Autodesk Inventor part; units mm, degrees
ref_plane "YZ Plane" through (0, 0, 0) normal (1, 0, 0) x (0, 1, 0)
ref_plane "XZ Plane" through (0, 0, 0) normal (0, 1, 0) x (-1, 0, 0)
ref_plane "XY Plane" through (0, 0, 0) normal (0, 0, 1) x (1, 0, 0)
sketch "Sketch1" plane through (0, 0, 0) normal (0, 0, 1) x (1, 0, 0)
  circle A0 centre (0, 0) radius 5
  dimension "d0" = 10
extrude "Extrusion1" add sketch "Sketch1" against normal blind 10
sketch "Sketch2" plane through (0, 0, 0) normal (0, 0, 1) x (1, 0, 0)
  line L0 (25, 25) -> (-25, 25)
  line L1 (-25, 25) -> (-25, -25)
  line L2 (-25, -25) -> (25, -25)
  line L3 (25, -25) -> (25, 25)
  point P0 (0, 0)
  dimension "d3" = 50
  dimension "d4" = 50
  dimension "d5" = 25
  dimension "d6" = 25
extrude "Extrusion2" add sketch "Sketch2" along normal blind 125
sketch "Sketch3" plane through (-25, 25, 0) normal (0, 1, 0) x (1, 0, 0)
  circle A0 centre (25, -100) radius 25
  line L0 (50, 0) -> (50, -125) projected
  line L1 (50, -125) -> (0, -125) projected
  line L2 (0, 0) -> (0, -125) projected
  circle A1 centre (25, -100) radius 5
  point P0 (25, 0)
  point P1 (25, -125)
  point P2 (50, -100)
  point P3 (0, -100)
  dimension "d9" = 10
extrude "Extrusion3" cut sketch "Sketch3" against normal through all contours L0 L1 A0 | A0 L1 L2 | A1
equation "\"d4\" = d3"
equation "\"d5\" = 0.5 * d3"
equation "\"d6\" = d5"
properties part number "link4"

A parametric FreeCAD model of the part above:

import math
import FreeCAD as App
import Part
import Sketcher

doc = App.newDocument("Part")
body = doc.addObject("PartDesign::Body", "Body")

# Sketch on XY plane
sketch1 = body.newObject("Sketcher::SketchObject", "Sketch")
sketch1.AttachmentSupport = (doc.getObject("XY_Plane"), [""])
sketch1.MapMode = "FlatFace"
sketch1.addGeometry(Part.Circle(App.Vector(0, 0, 0), App.Vector(0, 0, 1), 5), False)
sketch1.addConstraint(Sketcher.Constraint("Coincident", 0, 3, -1, 1))
sketch1.addConstraint(Sketcher.Constraint("Diameter", 0, 10.0))
pad1 = body.newObject("PartDesign::Pad", "Pad")
pad1.Profile = sketch1
pad1.Length = 10
pad1.Reversed = True

# Sketch on XY plane
sketch2 = body.newObject("Sketcher::SketchObject", "Sketch001")
sketch2.AttachmentSupport = (doc.getObject("XY_Plane"), [""])
sketch2.MapMode = "FlatFace"
sketch2.addGeometry(Part.LineSegment(App.Vector(25, -25, 0), App.Vector(25, 25, 0)), False)
sketch2.addGeometry(Part.LineSegment(App.Vector(25, 25, 0), App.Vector(-25, 25, 0)), False)
sketch2.addGeometry(Part.LineSegment(App.Vector(-25, 25, 0), App.Vector(-25, -25, 0)), False)
sketch2.addGeometry(Part.LineSegment(App.Vector(-25, -25, 0), App.Vector(25, -25, 0)), False)
sketch2.addConstraint(Sketcher.Constraint("Coincident", 0, 2, 1, 1))
sketch2.addConstraint(Sketcher.Constraint("Coincident", 1, 2, 2, 1))
sketch2.addConstraint(Sketcher.Constraint("Coincident", 2, 2, 3, 1))
sketch2.addConstraint(Sketcher.Constraint("Coincident", 3, 2, 0, 1))
sketch2.addConstraint(Sketcher.Constraint("Vertical", 0))
sketch2.addConstraint(Sketcher.Constraint("Horizontal", 1))
sketch2.addConstraint(Sketcher.Constraint("Vertical", 2))
sketch2.addConstraint(Sketcher.Constraint("Horizontal", 3))
sketch2.addConstraint(Sketcher.Constraint("Symmetric", 0, 2, 2, 2, -1, 1))
sketch2.addConstraint(Sketcher.Constraint("Equal", 3, 0))
sketch2.addConstraint(Sketcher.Constraint("DistanceX", 1, 2, 1, 1, 50.0))
pad2 = body.newObject("PartDesign::Pad", "Pad001")
pad2.Profile = sketch2
pad2.Length = 125

# Sketch on XZ plane
sketch3 = body.newObject("Sketcher::SketchObject", "Sketch002")
sketch3.AttachmentSupport = (doc.getObject("XZ_Plane"), [""])
sketch3.MapMode = "FlatFace"
sketch3.AttachmentOffset = App.Placement(App.Vector(0, 0, -25), App.Rotation())
sketch3.addGeometry(Part.LineSegment(App.Vector(25, 125, 0), App.Vector(25, 100, 0)), False)
sketch3.addGeometry(Part.ArcOfCircle(Part.Circle(App.Vector(0, 100, 0), App.Vector(0, 0, 1), 25), math.radians(0), math.radians(90)), False)
sketch3.addGeometry(Part.LineSegment(App.Vector(0, 125, 0), App.Vector(25, 125, 0)), False)
sketch3.addGeometry(Part.ArcOfCircle(Part.Circle(App.Vector(0, 100, 0), App.Vector(0, 0, 1), 25), math.radians(90), math.radians(180)), False)
sketch3.addGeometry(Part.LineSegment(App.Vector(-25, 100, 0), App.Vector(-25, 125, 0)), False)
sketch3.addGeometry(Part.LineSegment(App.Vector(-25, 125, 0), App.Vector(0, 125, 0)), False)
sketch3.addGeometry(Part.Circle(App.Vector(0, 100, 0), App.Vector(0, 0, 1), 5), False)
sketch3.addConstraint(Sketcher.Constraint("Tangent", 0, 2, 1, 1))
sketch3.addConstraint(Sketcher.Constraint("Tangent", 1, 2, 2, 1))
sketch3.addConstraint(Sketcher.Constraint("Coincident", 2, 2, 0, 1))
sketch3.addConstraint(Sketcher.Constraint("Tangent", 3, 2, 4, 1))
sketch3.addConstraint(Sketcher.Constraint("Coincident", 4, 2, 5, 1))
sketch3.addConstraint(Sketcher.Constraint("Tangent", 5, 2, 3, 1))
sketch3.addConstraint(Sketcher.Constraint("Vertical", 0))
sketch3.addConstraint(Sketcher.Constraint("Horizontal", 2))
sketch3.addConstraint(Sketcher.Constraint("Vertical", 4))
sketch3.addConstraint(Sketcher.Constraint("Horizontal", 5))
sketch3.addConstraint(Sketcher.Constraint("Coincident", 3, 3, 1, 3))
sketch3.addConstraint(Sketcher.Constraint("Coincident", 6, 3, 1, 3))
sketch3.addConstraint(Sketcher.Constraint("Equal", 1, 3))
sketch3.addConstraint(Sketcher.Constraint("PointOnObject", 1, 3, -2))
sketch3.addConstraint(Sketcher.Constraint("Diameter", 6, 10.0))
sketch3.addConstraint(Sketcher.Constraint("Radius", 1, 25.0))
sketch3.addConstraint(Sketcher.Constraint("DistanceY", -1, 1, 1, 3, 100.0))
pocket1 = body.newObject("PartDesign::Pocket", "Pocket")
pocket1.Profile = sketch3
pocket1.Type = "ThroughAll"
pocket1.Reversed = True

doc.recompute()
